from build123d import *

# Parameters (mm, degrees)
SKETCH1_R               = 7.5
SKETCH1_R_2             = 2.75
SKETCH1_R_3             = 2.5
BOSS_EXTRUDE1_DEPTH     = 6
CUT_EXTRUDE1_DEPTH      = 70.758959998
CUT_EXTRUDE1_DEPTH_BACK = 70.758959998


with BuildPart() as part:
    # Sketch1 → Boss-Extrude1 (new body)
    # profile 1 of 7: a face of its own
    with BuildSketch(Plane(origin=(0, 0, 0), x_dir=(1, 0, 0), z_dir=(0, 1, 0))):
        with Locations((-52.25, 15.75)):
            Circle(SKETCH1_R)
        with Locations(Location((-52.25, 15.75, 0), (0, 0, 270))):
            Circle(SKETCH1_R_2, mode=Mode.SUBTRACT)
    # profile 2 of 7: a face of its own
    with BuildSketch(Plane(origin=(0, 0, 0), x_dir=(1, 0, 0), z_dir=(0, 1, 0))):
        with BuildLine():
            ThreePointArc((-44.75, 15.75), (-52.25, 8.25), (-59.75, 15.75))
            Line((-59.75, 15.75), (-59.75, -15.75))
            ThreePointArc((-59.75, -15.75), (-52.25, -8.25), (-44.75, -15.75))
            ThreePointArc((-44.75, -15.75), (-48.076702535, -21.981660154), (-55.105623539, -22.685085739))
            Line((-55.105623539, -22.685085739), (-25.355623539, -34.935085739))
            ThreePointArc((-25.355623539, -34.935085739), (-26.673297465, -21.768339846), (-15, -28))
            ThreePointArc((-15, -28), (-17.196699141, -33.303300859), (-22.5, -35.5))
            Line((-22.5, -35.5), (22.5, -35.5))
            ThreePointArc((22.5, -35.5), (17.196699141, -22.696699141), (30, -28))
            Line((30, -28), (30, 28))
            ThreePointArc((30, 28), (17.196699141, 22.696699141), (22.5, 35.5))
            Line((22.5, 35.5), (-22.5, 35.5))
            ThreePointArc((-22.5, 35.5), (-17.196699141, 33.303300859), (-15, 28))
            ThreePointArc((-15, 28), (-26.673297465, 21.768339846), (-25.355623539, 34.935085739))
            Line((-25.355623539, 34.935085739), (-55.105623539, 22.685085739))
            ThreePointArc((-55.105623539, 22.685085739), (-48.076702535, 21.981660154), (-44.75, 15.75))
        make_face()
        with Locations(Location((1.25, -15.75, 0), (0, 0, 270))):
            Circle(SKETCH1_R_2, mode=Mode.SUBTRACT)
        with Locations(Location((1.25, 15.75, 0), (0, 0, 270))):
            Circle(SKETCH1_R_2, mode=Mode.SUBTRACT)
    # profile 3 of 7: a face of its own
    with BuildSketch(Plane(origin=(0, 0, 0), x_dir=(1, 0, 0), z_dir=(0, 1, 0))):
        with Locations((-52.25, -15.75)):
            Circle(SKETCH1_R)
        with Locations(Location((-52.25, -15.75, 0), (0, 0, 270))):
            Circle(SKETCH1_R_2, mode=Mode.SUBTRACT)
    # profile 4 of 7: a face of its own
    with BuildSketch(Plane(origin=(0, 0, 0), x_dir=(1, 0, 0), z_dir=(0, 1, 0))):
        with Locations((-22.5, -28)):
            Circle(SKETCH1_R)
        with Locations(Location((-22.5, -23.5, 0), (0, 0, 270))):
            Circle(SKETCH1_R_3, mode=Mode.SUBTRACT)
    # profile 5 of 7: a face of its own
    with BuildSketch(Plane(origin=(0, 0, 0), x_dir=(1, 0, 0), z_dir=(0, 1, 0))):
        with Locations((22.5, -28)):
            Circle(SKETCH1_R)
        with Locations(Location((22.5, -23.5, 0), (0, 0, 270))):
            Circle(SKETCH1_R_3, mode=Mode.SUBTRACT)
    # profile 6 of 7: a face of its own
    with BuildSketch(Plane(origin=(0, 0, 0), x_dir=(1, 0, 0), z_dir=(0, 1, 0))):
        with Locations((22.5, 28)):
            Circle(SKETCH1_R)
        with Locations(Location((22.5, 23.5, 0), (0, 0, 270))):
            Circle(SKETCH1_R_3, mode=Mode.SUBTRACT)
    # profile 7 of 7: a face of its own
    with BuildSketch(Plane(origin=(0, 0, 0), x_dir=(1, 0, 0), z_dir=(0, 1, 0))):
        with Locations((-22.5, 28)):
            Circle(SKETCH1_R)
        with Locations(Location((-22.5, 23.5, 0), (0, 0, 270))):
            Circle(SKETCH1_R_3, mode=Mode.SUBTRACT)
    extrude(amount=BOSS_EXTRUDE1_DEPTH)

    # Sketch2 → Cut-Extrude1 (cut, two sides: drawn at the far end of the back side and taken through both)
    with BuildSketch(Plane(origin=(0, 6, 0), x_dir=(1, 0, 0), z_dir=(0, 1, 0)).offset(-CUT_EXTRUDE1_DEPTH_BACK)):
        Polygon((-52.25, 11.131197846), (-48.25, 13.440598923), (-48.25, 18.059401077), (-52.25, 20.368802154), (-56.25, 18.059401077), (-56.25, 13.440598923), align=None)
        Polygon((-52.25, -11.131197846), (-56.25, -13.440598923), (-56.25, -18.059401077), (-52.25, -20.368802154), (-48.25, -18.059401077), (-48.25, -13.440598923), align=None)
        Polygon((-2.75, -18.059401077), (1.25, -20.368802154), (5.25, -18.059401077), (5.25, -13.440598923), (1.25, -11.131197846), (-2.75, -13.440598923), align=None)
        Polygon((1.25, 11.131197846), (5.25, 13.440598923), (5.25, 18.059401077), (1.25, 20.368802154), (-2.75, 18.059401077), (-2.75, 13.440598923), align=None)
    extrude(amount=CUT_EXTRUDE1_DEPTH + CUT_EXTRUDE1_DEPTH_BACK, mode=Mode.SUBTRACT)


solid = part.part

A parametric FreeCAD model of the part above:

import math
import FreeCAD as App
import Part
import Sketcher
from FreeCAD import Vector
Q = App.Units.Quantity


def add_polygon(sketch, points):
    """Adds a closed chain of lines whose ends are joined by coincident constraints."""
    first, n = sketch.GeometryCount, len(points)
    for a, b in zip(points, points[1:] + points[:1]):
        sketch.addGeometry(Part.LineSegment(App.Vector(*a, 0), App.Vector(*b, 0)), False)
    for i in range(n):
        sketch.addConstraint(Sketcher.Constraint("Coincident", first + i, 2, first + (i + 1) % n, 1))

doc = App.newDocument("Part")
body = doc.addObject("PartDesign::Body", "Body")

# Sketch on XZ plane
sketch1 = body.newObject("Sketcher::SketchObject", "Sketch")
sketch1.AttachmentSupport = (doc.getObject("XZ_Plane"), [""])
sketch1.MapMode = "FlatFace"
sketch1.addGeometry([
    Part.ArcOfCircle(Part.Circle(Vector(-52.25, -15.75, 0), Vector(0, 0, 1), 7.5), math.radians(180), math.radians(247.619865)),  # 0
    Part.LineSegment(Vector(-59.75, -15.75, 0), Vector(-59.75, 15.75, 0)),  # 1
    Part.ArcOfCircle(Part.Circle(Vector(-52.25, 15.75, 0), Vector(0, 0, 1), 7.5), math.radians(112.380135), math.radians(180)),  # 2
    Part.LineSegment(Vector(-55.105624, 22.685086, 0), Vector(-25.355624, 34.935086, 0)),  # 3
    Part.ArcOfCircle(Part.Circle(Vector(-22.5, 28, 0), Vector(0, 0, 1), 7.5), math.radians(90), math.radians(112.380135)),  # 4
    Part.LineSegment(Vector(-22.5, 35.5, 0), Vector(22.5, 35.5, 0)),  # 5
    Part.ArcOfCircle(Part.Circle(Vector(22.5, 28, 0), Vector(0, 0, 1), 7.5), math.radians(0), math.radians(90)),  # 6
    Part.LineSegment(Vector(30, 28, 0), Vector(30, -28, 0)),  # 7
    Part.ArcOfCircle(Part.Circle(Vector(22.5, -28, 0), Vector(0, 0, 1), 7.5), math.radians(-90), math.radians(0)),  # 8
    Part.LineSegment(Vector(22.5, -35.5, 0), Vector(-22.5, -35.5, 0)),  # 9
    Part.ArcOfCircle(Part.Circle(Vector(-22.5, -28, 0), Vector(0, 0, 1), 7.5), math.radians(-112.380135), math.radians(-90)),  # 10
    Part.LineSegment(Vector(-25.355624, -34.935086, 0), Vector(-55.105624, -22.685086, 0)),  # 11
    Part.Circle(Vector(-52.25, -15.75, 0), Vector(0, 0, 1), 2.75),  # 12
    Part.Circle(Vector(1.25, 15.75, 0), Vector(0, 0, 1), 2.75),  # 13
    Part.Circle(Vector(1.25, -15.75, 0), Vector(0, 0, 1), 2.75),  # 14
    Part.Circle(Vector(-52.25, 15.75, 0), Vector(0, 0, 1), 2.75),  # 15
    Part.Circle(Vector(-22.5, -23.5, 0), Vector(0, 0, 1), 2.5),  # 16
    Part.Circle(Vector(-22.5, 23.5, 0), Vector(0, 0, 1), 2.5),  # 17
    Part.Circle(Vector(22.5, -23.5, 0), Vector(0, 0, 1), 2.5),  # 18
    Part.Circle(Vector(22.5, 23.5, 0), Vector(0, 0, 1), 2.5),  # 19
], False)
sketch1.addConstraint([
    Sketcher.Constraint("Tangent", 0, 1, 1, 1),
    Sketcher.Constraint("Tangent", 1, 2, 2, 2),
    Sketcher.Constraint("Tangent", 2, 1, 3, 1),
    Sketcher.Constraint("Tangent", 3, 2, 4, 2),
    Sketcher.Constraint("Tangent", 4, 1, 5, 1),
    Sketcher.Constraint("Tangent", 5, 2, 6, 2),
    Sketcher.Constraint("Tangent", 6, 1, 7, 1),
    Sketcher.Constraint("Tangent", 7, 2, 8, 2),
    Sketcher.Constraint("Tangent", 8, 1, 9, 1),
    Sketcher.Constraint("Tangent", 9, 2, 10, 2),
    Sketcher.Constraint("Tangent", 10, 1, 11, 1),
    Sketcher.Constraint("Tangent", 11, 2, 0, 2),
    Sketcher.Constraint("Vertical", 1),
    Sketcher.Constraint("Horizontal", 5),
    Sketcher.Constraint("Vertical", 7),
    Sketcher.Constraint("Horizontal", 9),
    Sketcher.Constraint("Coincident", 12, 3, 0, 3),
    Sketcher.Constraint("Coincident", 15, 3, 2, 3),
    Sketcher.Constraint("Equal", 0, 2),
    Sketcher.Constraint("Equal", 2, 4),
    Sketcher.Constraint("Equal", 4, 6),
    Sketcher.Constraint("Equal", 6, 8),
    Sketcher.Constraint("Equal", 8, 10),
    Sketcher.Constraint("Equal", 12, 13),
    Sketcher.Constraint("Equal", 13, 14),
    Sketcher.Constraint("Equal", 14, 15),
    Sketcher.Constraint("Equal", 16, 17),
    Sketcher.Constraint("Equal", 17, 18),
    Sketcher.Constraint("Equal", 18, 19),
    Sketcher.Constraint("Symmetric", 4, 3, 8, 3, -1, 1),
    Sketcher.Constraint("Symmetric", 17, 3, 18, 3, -1, 1),
    Sketcher.Constraint("Symmetric", 16, 3, 19, 3, -1, 1),
    Sketcher.Constraint("Symmetric", 16, 3, 18, 3, -2),
    Sketcher.Constraint("Symmetric", 13, 3, 14, 3, -1),
    Sketcher.Constraint("Symmetric", 3, 2, 10, 1, -1),
    Sketcher.Constraint("Horizontal", 2, 3, 13, 3),
    Sketcher.Constraint("Vertical", 10, 3, 16, 3),
    Sketcher.Constraint("Diameter", 16, Q("5 mm")),
    Sketcher.Constraint("Diameter", 12, Q("5.5 mm")),
    Sketcher.Constraint("Radius", 0, Q("7.5 mm")),
    Sketcher.Constraint("DistanceX", 5, 1, 5, 2, Q("45 mm")),
    Sketcher.Constraint("DistanceY", 7, 2, 7, 1, Q("56 mm")),
    Sketcher.Constraint("DistanceY", 1, 1, 1, 2, Q("31.5 mm")),
    Sketcher.Constraint("DistanceY", 17, 3, 4, 1, Q("12 mm")),
    Sketcher.Constraint("DistanceX", 2, 3, 13, 3, Q("53.5 mm")),
    Sketcher.Constraint("DistanceX", 0, 3, -1, 1, Q("52.25 mm")),
])
pad1 = body.newObject("PartDesign::Pad", "Pad")
pad1.Profile = sketch1
pad1.Length = 6
pad1.Reversed = True

# Sketch on XZ plane
sketch2 = body.newObject("Sketcher::SketchObject", "Sketch001")
sketch2.AttachmentSupport = (doc.getObject("XZ_Plane"), [""])
sketch2.MapMode = "FlatFace"
sketch2.AttachmentOffset = App.Placement(Vector(0, 0, -6), App.Rotation())
add_polygon(sketch2, [(-52.25, -11.131198), (-48.25, -13.440599), (-48.25, -18.059401), (-52.25, -20.368802), (-56.25, -18.059401), (-56.25, -13.440599)])  # lines 0-5
add_polygon(sketch2, [(-52.25, 11.131198), (-56.25, 13.440599), (-56.25, 18.059401), (-52.25, 20.368802), (-48.25, 18.059401), (-48.25, 13.440599)])  # lines 6-11
add_polygon(sketch2, [(-2.75, 18.059401), (1.25, 20.368802), (5.25, 18.059401), (5.25, 13.440599), (1.25, 11.131198), (-2.75, 13.440599)])  # lines 12-17
add_polygon(sketch2, [(1.25, -11.131198), (5.25, -13.440599), (5.25, -18.059401), (1.25, -20.368802), (-2.75, -18.059401), (-2.75, -13.440599)])  # lines 18-23
sketch2.addConstraint([
    Sketcher.Constraint("Vertical", 1),
    Sketcher.Constraint("Vertical", 4),
    Sketcher.Constraint("Vertical", 7),
    Sketcher.Constraint("Vertical", 10),
    Sketcher.Constraint("Vertical", 14),
    Sketcher.Constraint("Vertical", 17),
    Sketcher.Constraint("Vertical", 19),
    Sketcher.Constraint("Vertical", 22),
    Sketcher.Constraint("Symmetric", 4, 2, 6, 2, -1),
    Sketcher.Constraint("Symmetric", 2, 2, 8, 2, -1),
    Sketcher.Constraint("Symmetric", 1, 2, 9, 2, -1),
    Sketcher.Constraint("Symmetric", 5, 2, 11, 2, -1),
    Sketcher.Constraint("Symmetric", 14, 2, 18, 2, -1),
    Sketcher.Constraint("Symmetric", 12, 2, 20, 2, -1),
    Sketcher.Constraint("Symmetric", 17, 2, 21, 2, -1),
    Sketcher.Constraint("Symmetric", 15, 2, 23, 2, -1),
    Sketcher.Constraint("Parallel", 0, 3),
    Sketcher.Constraint("Parallel", 2, 5),
    Sketcher.Constraint("Parallel", 3, 6),
    Sketcher.Constraint("Parallel", 5, 8),
    Sketcher.Constraint("Parallel", 8, 11),
    Sketcher.Constraint("Parallel", 11, 12),
    Sketcher.Constraint("Parallel", 9, 13),
    Sketcher.Constraint("Parallel", 12, 15),
    Sketcher.Constraint("Parallel", 13, 16),
    Sketcher.Constraint("Parallel", 15, 20),
    Sketcher.Constraint("Parallel", 20, 23),
    Sketcher.Constraint("Horizontal", 1, 2, 3, 2),
    Sketcher.Constraint("Horizontal", 0, 2, 4, 2),
    Sketcher.Constraint("Horizontal", 8, 2, 12, 2),
    Sketcher.Constraint("Horizontal", 9, 2, 13, 2),
    Sketcher.Constraint("Horizontal", 10, 2, 14, 2),
    Sketcher.Constraint("Horizontal", 11, 2, 15, 2),
    Sketcher.Constraint("Horizontal", 14, 2, 16, 2),
    Sketcher.Constraint("Angle", 0, Q("-30 deg")),
    Sketcher.Constraint("DistanceX", 2, 2, 1, 2, Q("4 mm")),
    Sketcher.Constraint("DistanceY", 3, 2, 6, 2, Q("31.5 mm")),
    Sketcher.Constraint("DistanceX", 9, 2, 12, 2, Q("49.5 mm")),
    Sketcher.Constraint("DistanceX", 0, 2, -1, 1, Q("48.25 mm")),
    Sketcher.Constraint("DistanceY", 0, 2, -1, 1, Q("13.440599 mm")),
])
pocket1 = body.newObject("PartDesign::Pocket", "Pocket")
pocket1.Profile = sketch2
pocket1.Type = "ThroughAll"
pocket1.Midplane = True

doc.recompute()
